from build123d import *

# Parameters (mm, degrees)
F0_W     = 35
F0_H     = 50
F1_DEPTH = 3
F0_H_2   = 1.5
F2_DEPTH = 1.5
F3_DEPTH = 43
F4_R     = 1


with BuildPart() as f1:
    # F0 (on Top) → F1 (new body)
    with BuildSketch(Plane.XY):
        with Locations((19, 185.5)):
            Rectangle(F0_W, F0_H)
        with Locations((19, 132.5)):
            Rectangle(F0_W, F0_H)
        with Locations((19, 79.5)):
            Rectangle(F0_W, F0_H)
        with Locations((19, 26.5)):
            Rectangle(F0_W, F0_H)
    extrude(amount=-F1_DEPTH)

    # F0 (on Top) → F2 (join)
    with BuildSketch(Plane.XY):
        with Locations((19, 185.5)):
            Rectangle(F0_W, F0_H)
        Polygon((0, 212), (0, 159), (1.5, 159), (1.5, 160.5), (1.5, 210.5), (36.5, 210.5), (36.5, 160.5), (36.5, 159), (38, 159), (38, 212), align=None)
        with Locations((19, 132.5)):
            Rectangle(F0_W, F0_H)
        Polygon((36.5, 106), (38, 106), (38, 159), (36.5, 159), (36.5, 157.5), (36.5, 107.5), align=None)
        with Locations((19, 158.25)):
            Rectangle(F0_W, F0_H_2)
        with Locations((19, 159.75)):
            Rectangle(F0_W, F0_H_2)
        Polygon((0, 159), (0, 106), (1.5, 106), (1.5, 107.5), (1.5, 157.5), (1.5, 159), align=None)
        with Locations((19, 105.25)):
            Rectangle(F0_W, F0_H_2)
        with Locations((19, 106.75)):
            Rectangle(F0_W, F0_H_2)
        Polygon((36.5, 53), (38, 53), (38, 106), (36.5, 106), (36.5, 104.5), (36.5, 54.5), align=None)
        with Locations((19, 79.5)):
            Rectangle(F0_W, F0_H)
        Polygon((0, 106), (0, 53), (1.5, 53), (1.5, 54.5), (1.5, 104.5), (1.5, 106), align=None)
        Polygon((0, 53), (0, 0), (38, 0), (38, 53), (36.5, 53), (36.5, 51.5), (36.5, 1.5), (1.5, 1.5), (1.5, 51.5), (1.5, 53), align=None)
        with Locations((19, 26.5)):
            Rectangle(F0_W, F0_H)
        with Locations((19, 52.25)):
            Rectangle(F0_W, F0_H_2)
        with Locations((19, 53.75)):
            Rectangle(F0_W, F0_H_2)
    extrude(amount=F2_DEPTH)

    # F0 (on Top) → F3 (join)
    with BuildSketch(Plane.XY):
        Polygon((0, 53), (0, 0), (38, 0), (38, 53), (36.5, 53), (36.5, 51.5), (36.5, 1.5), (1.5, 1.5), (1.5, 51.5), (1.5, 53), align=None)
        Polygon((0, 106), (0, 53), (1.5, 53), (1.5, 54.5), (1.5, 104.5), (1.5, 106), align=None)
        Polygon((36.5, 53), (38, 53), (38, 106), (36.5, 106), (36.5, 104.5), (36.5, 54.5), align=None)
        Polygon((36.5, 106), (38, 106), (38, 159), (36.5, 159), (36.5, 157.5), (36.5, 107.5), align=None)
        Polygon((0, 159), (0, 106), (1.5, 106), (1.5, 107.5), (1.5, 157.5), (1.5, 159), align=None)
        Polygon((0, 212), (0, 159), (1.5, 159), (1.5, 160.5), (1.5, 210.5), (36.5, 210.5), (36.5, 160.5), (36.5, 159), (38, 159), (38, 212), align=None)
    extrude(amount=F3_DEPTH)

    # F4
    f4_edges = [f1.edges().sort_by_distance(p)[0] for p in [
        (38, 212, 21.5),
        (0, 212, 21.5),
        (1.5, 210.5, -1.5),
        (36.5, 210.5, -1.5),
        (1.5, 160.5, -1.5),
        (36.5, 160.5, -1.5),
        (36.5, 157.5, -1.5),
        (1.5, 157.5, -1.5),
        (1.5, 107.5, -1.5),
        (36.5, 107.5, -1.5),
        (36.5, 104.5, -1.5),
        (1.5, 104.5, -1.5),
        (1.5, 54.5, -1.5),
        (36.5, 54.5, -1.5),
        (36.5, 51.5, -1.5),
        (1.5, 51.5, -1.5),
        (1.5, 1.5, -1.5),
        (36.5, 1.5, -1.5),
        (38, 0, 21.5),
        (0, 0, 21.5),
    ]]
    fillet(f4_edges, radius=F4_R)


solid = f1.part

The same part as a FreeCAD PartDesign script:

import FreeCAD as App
import Part
import Sketcher
from FreeCAD import Vector
Q = App.Units.Quantity


def edges_at(feature, points):
    """Names of the edges that pass closest to the given points."""
    edges = feature.Shape.Edges
    near = lambda p: min(range(len(edges)), key=lambda i: edges[i].distToShape(Part.Vertex(*p))[0])
    return sorted({f"Edge{near(p) + 1}" for p in points})

doc = App.newDocument("Part")
body = doc.addObject("PartDesign::Body", "Body")
body.AllowCompound = True

# Sketch on XY plane
sketch1 = doc.addObject("Sketcher::SketchObject", "Sketch")
body.addObject(sketch1)
sketch1.AttachmentSupport = (doc.XY_Plane, [""])
sketch1.MapMode = "FlatFace"
sketch1.addGeometry(Part.LineSegment(Vector(2, 210, 0), Vector(2, 160, 0)), False)
sketch1.addGeometry(Part.LineSegment(Vector(2, 160, 0), Vector(36, 160, 0)), False)
sketch1.addGeometry(Part.LineSegment(Vector(36, 160, 0), Vector(36, 210, 0)), False)
sketch1.addGeometry(Part.LineSegment(Vector(36, 210, 0), Vector(2, 210, 0)), False)
sketch1.addGeometry(Part.LineSegment(Vector(2, 158, 0), Vector(2, 108, 0)), False)
sketch1.addGeometry(Part.LineSegment(Vector(2, 108, 0), Vector(36, 108, 0)), False)
sketch1.addGeometry(Part.LineSegment(Vector(36, 108, 0), Vector(36, 158, 0)), False)
sketch1.addGeometry(Part.LineSegment(Vector(36, 158, 0), Vector(2, 158, 0)), False)
sketch1.addGeometry(Part.LineSegment(Vector(2, 104, 0), Vector(2, 54, 0)), False)
sketch1.addGeometry(Part.LineSegment(Vector(2, 54, 0), Vector(36, 54, 0)), False)
sketch1.addGeometry(Part.LineSegment(Vector(36, 54, 0), Vector(36, 104, 0)), False)
sketch1.addGeometry(Part.LineSegment(Vector(36, 104, 0), Vector(2, 104, 0)), False)
sketch1.addGeometry(Part.LineSegment(Vector(2, 52, 0), Vector(2, 2, 0)), False)
sketch1.addGeometry(Part.LineSegment(Vector(2, 2, 0), Vector(36, 2, 0)), False)
sketch1.addGeometry(Part.LineSegment(Vector(36, 2, 0), Vector(36, 52, 0)), False)
sketch1.addGeometry(Part.LineSegment(Vector(36, 52, 0), Vector(2, 52, 0)), False)
sketch1.addConstraint(Sketcher.Constraint("Coincident", 0, 2, 1, 1))
sketch1.addConstraint(Sketcher.Constraint("Coincident", 1, 2, 2, 1))
sketch1.addConstraint(Sketcher.Constraint("Coincident", 2, 2, 3, 1))
sketch1.addConstraint(Sketcher.Constraint("Coincident", 3, 2, 0, 1))
sketch1.addConstraint(Sketcher.Constraint("Coincident", 4, 2, 5, 1))
sketch1.addConstraint(Sketcher.Constraint("Coincident", 5, 2, 6, 1))
sketch1.addConstraint(Sketcher.Constraint("Coincident", 6, 2, 7, 1))
sketch1.addConstraint(Sketcher.Constraint("Coincident", 7, 2, 4, 1))
sketch1.addConstraint(Sketcher.Constraint("Coincident", 8, 2, 9, 1))
sketch1.addConstraint(Sketcher.Constraint("Coincident", 9, 2, 10, 1))
sketch1.addConstraint(Sketcher.Constraint("Coincident", 10, 2, 11, 1))
sketch1.addConstraint(Sketcher.Constraint("Coincident", 11, 2, 8, 1))
sketch1.addConstraint(Sketcher.Constraint("Coincident", 12, 2, 13, 1))
sketch1.addConstraint(Sketcher.Constraint("Coincident", 13, 2, 14, 1))
sketch1.addConstraint(Sketcher.Constraint("Coincident", 14, 2, 15, 1))
sketch1.addConstraint(Sketcher.Constraint("Coincident", 15, 2, 12, 1))
sketch1.addConstraint(Sketcher.Constraint("Vertical", 0))
sketch1.addConstraint(Sketcher.Constraint("Horizontal", 1))
sketch1.addConstraint(Sketcher.Constraint("Vertical", 2))
sketch1.addConstraint(Sketcher.Constraint("Horizontal", 3))
sketch1.addConstraint(Sketcher.Constraint("Vertical", 4))
sketch1.addConstraint(Sketcher.Constraint("Horizontal", 5))
sketch1.addConstraint(Sketcher.Constraint("Vertical", 6))
sketch1.addConstraint(Sketcher.Constraint("Horizontal", 7))
sketch1.addConstraint(Sketcher.Constraint("Vertical", 8))
sketch1.addConstraint(Sketcher.Constraint("Horizontal", 9))
sketch1.addConstraint(Sketcher.Constraint("Vertical", 10))
sketch1.addConstraint(Sketcher.Constraint("Horizontal", 11))
sketch1.addConstraint(Sketcher.Constraint("Vertical", 12))
sketch1.addConstraint(Sketcher.Constraint("Horizontal", 13))
sketch1.addConstraint(Sketcher.Constraint("Vertical", 14))
sketch1.addConstraint(Sketcher.Constraint("Horizontal", 15))
sketch1.addConstraint(Sketcher.Constraint("Vertical", 3, 2, 4, 2))
sketch1.addConstraint(Sketcher.Constraint("Vertical", 2, 2, 5, 2))
sketch1.addConstraint(Sketcher.Constraint("Vertical", 7, 2, 8, 2))
sketch1.addConstraint(Sketcher.Constraint("Vertical", 6, 2, 9, 2))
sketch1.addConstraint(Sketcher.Constraint("Vertical", 11, 2, 12, 2))
sketch1.addConstraint(Sketcher.Constraint("Vertical", 10, 2, 13, 2))
sketch1.addConstraint(Sketcher.Constraint("Equal", 2, 4))
sketch1.addConstraint(Sketcher.Constraint("Equal", 6, 8))
sketch1.addConstraint(Sketcher.Constraint("Equal", 10, 12))
sketch1.addConstraint(Sketcher.Constraint("DistanceX", 1, 1, 1, 2, Q("35 mm")))
sketch1.addConstraint(Sketcher.Constraint("DistanceY", 0, 2, 0, 1, Q("50 mm")))
sketch1.addConstraint(Sketcher.Constraint("DistanceY", 4, 2, 0, 2, Q("53 mm")))
sketch1.addConstraint(Sketcher.Constraint("DistanceY", 8, 2, 4, 2, Q("53 mm")))
sketch1.addConstraint(Sketcher.Constraint("DistanceY", 12, 2, 8, 2, Q("53 mm")))
sketch1.addConstraint(Sketcher.Constraint("DistanceX", -1, 1, 0, 2, Q("1.5 mm")))
sketch1.addConstraint(Sketcher.Constraint("DistanceY", -1, 1, 0, 2, Q("160.5 mm")))
pad1 = doc.addObject("PartDesign::Pad", "Pad")
body.addObject(pad1)
pad1.Profile = sketch1
pad1.Length = 3
pad1.Reversed = True

# Sketch on XY plane
sketch2 = doc.addObject("Sketcher::SketchObject", "Sketch001")
body.addObject(sketch2)
sketch2.AttachmentSupport = (doc.XY_Plane, [""])
sketch2.MapMode = "FlatFace"
sketch2.addGeometry(Part.LineSegment(Vector(38, 212, 0), Vector(0, 212, 0)), False)
sketch2.addGeometry(Part.LineSegment(Vector(0, 212, 0), Vector(0, 0, 0)), False)
sketch2.addGeometry(Part.LineSegment(Vector(0, 0, 0), Vector(38, 0, 0)), False)
sketch2.addGeometry(Part.LineSegment(Vector(38, 0, 0), Vector(38, 212, 0)), False)
sketch2.addConstraint(Sketcher.Constraint("Coincident", 0, 2, 1, 1))
sketch2.addConstraint(Sketcher.Constraint("Coincident", 1, 2, 2, 1))
sketch2.addConstraint(Sketcher.Constraint("Coincident", 2, 2, 3, 1))
sketch2.addConstraint(Sketcher.Constraint("Coincident", 3, 2, 0, 1))
sketch2.addConstraint(Sketcher.Constraint("Horizontal", 0))
sketch2.addConstraint(Sketcher.Constraint("Vertical", 1))
sketch2.addConstraint(Sketcher.Constraint("Horizontal", 2))
sketch2.addConstraint(Sketcher.Constraint("Vertical", 3))
sketch2.addConstraint(Sketcher.Constraint("Coincident", 1, 2, -1, 1))
sketch2.addConstraint(Sketcher.Constraint("DistanceX", 0, 2, 0, 1, Q("38 mm")))
sketch2.addConstraint(Sketcher.Constraint("DistanceY", 1, 2, 1, 1, Q("212 mm")))
pad2 = doc.addObject("PartDesign::Pad", "Pad001")
body.addObject(pad2)
pad2.Profile = sketch2
pad2.Length = 1.5

# Sketch on XY plane
sketch3 = doc.addObject("Sketcher::SketchObject", "Sketch002")
body.addObject(sketch3)
sketch3.AttachmentSupport = (doc.XY_Plane, [""])
sketch3.MapMode = "FlatFace"
sketch3.addGeometry(Part.LineSegment(Vector(0, 0, 0), Vector(38, 0, 0)), False)
sketch3.addGeometry(Part.LineSegment(Vector(38, 0, 0), Vector(38, 212, 0)), False)
sketch3.addGeometry(Part.LineSegment(Vector(38, 212, 0), Vector(0, 212, 0)), False)
sketch3.addGeometry(Part.LineSegment(Vector(0, 212, 0), Vector(0, 0, 0)), False)
sketch3.addGeometry(Part.LineSegment(Vector(36, 2, 0), Vector(2, 2, 0)), False)
sketch3.addGeometry(Part.LineSegment(Vector(2, 2, 0), Vector(2, 210, 0)), False)
sketch3.addGeometry(Part.LineSegment(Vector(2, 210, 0), Vector(36, 210, 0)), False)
sketch3.addGeometry(Part.LineSegment(Vector(36, 210, 0), Vector(36, 2, 0)), False)
sketch3.addConstraint(Sketcher.Constraint("Coincident", 0, 2, 1, 1))
sketch3.addConstraint(Sketcher.Constraint("Coincident", 1, 2, 2, 1))
sketch3.addConstraint(Sketcher.Constraint("Coincident", 2, 2, 3, 1))
sketch3.addConstraint(Sketcher.Constraint("Coincident", 3, 2, 0, 1))
sketch3.addConstraint(Sketcher.Constraint("Coincident", 4, 2, 5, 1))
sketch3.addConstraint(Sketcher.Constraint("Coincident", 5, 2, 6, 1))
sketch3.addConstraint(Sketcher.Constraint("Coincident", 6, 2, 7, 1))
sketch3.addConstraint(Sketcher.Constraint("Coincident", 7, 2, 4, 1))
sketch3.addConstraint(Sketcher.Constraint("Horizontal", 0))
sketch3.addConstraint(Sketcher.Constraint("Vertical", 1))
sketch3.addConstraint(Sketcher.Constraint("Horizontal", 2))
sketch3.addConstraint(Sketcher.Constraint("Vertical", 3))
sketch3.addConstraint(Sketcher.Constraint("Horizontal", 4))
sketch3.addConstraint(Sketcher.Constraint("Vertical", 5))
sketch3.addConstraint(Sketcher.Constraint("Horizontal", 6))
sketch3.addConstraint(Sketcher.Constraint("Vertical", 7))
sketch3.addConstraint(Sketcher.Constraint("Coincident", 3, 2, -1, 1))
sketch3.addConstraint(Sketcher.Constraint("DistanceX", 0, 1, 0, 2, Q("38 mm")))
sketch3.addConstraint(Sketcher.Constraint("DistanceX", 4, 2, 4, 1, Q("35 mm")))
sketch3.addConstraint(Sketcher.Constraint("DistanceY", 1, 1, 1, 2, Q("212 mm")))
sketch3.addConstraint(Sketcher.Constraint("DistanceY", 5, 1, 5, 2, Q("209 mm")))
sketch3.addConstraint(Sketcher.Constraint("DistanceX", -1, 1, 4, 2, Q("1.5 mm")))
sketch3.addConstraint(Sketcher.Constraint("DistanceY", -1, 1, 4, 2, Q("1.5 mm")))
pad3 = doc.addObject("PartDesign::Pad", "Pad002")
body.addObject(pad3)
pad3.Profile = sketch3
pad3.Length = 43
doc.recompute()

fillet = doc.addObject("PartDesign::Fillet", "Fillet")
body.addObject(fillet)
fillet.Base = (pad3, edges_at(pad3, [
    (38, 212, 21.5),
    (0, 212, 21.5),
    (1.5, 210.5, -1.5),
    (36.5, 210.5, -1.5),
    (1.5, 160.5, -1.5),
    (36.5, 160.5, -1.5),
    (36.5, 157.5, -1.5),
    (1.5, 157.5, -1.5),
    (1.5, 107.5, -1.5),
    (36.5, 107.5, -1.5),
    (36.5, 104.5, -1.5),
    (1.5, 104.5, -1.5),
    (1.5, 54.5, -1.5),
    (36.5, 54.5, -1.5),
    (36.5, 51.5, -1.5),
    (1.5, 51.5, -1.5),
    (1.5, 1.5, -1.5),
    (36.5, 1.5, -1.5),
    (38, 0, 21.5),
    (0, 0, 21.5),
]))
fillet.Radius = 1

doc.recompute()
